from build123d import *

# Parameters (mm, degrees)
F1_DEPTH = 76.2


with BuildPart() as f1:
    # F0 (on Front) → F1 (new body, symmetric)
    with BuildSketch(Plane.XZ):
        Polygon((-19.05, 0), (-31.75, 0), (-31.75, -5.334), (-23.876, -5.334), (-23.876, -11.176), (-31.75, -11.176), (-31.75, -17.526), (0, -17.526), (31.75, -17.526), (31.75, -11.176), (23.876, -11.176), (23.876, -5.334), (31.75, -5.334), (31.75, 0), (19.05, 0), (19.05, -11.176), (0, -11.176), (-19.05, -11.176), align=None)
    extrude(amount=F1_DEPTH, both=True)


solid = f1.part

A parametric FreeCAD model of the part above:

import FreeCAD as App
import Part
import Sketcher
Q = App.Units.Quantity


def add_polygon(sketch, points):
    """Adds a closed chain of lines whose ends are joined by coincident constraints."""
    first, n = sketch.GeometryCount, len(points)
    for a, b in zip(points, points[1:] + points[:1]):
        sketch.addGeometry(Part.LineSegment(App.Vector(*a, 0), App.Vector(*b, 0)), False)
    for i in range(n):
        sketch.addConstraint(Sketcher.Constraint("Coincident", first + i, 2, first + (i + 1) % n, 1))

doc = App.newDocument("Part")
body = doc.addObject("PartDesign::Body", "Body")

# Sketch on XZ plane
sketch1 = body.newObject("Sketcher::SketchObject", "Sketch")
sketch1.AttachmentSupport = (doc.getObject("XZ_Plane"), [""])
sketch1.MapMode = "FlatFace"
add_polygon(sketch1, [(-19, 0), (-32, 0), (-32, -5), (-24, -5), (-24, -11), (-32, -11), (-32, -18), (32, -18), (32, -11), (24, -11), (24, -5), (32, -5), (32, 0), (19, 0), (19, -11), (-19, -11)])  # lines 0-15
sketch1.addConstraint(Sketcher.Constraint("Horizontal", 0))
sketch1.addConstraint(Sketcher.Constraint("Vertical", 1))
sketch1.addConstraint(Sketcher.Constraint("Horizontal", 2))
sketch1.addConstraint(Sketcher.Constraint("Vertical", 3))
sketch1.addConstraint(Sketcher.Constraint("Horizontal", 4))
sketch1.addConstraint(Sketcher.Constraint("Vertical", 5))
sketch1.addConstraint(Sketcher.Constraint("Horizontal", 6))
sketch1.addConstraint(Sketcher.Constraint("Vertical", 7))
sketch1.addConstraint(Sketcher.Constraint("Horizontal", 8))
sketch1.addConstraint(Sketcher.Constraint("Vertical", 9))
sketch1.addConstraint(Sketcher.Constraint("Horizontal", 10))
sketch1.addConstraint(Sketcher.Constraint("Vertical", 11))
sketch1.addConstraint(Sketcher.Constraint("Horizontal", 12))
sketch1.addConstraint(Sketcher.Constraint("Vertical", 13))
sketch1.addConstraint(Sketcher.Constraint("Horizontal", 14))
sketch1.addConstraint(Sketcher.Constraint("Vertical", 15))
sketch1.addConstraint(Sketcher.Constraint("Symmetric", 0, 2, 11, 2, -1, 1))
sketch1.addConstraint(Sketcher.Constraint("Symmetric", 4, 2, 7, 2, -2))
sketch1.addConstraint(Sketcher.Constraint("Symmetric", 2, 2, 9, 2, -2))
sketch1.addConstraint(Sketcher.Constraint("Symmetric", 12, 2, 15, 2, -2))
sketch1.addConstraint(Sketcher.Constraint("Horizontal", 8, 2, 13, 2))
sketch1.addConstraint(Sketcher.Constraint("Vertical", 1, 2, 4, 2))
sketch1.addConstraint(Sketcher.Constraint("DistanceX", 0, 2, 0, 1, Q("0.5 in")))
sketch1.addConstraint(Sketcher.Constraint("DistanceX", 6, 1, 6, 2, Q("2.5 in")))
sketch1.addConstraint(Sketcher.Constraint("DistanceX", 2, 1, 2, 2, Q("0.31 in")))
sketch1.addConstraint(Sketcher.Constraint("DistanceY", 1, 2, 1, 1, Q("0.21 in")))
sketch1.addConstraint(Sketcher.Constraint("DistanceY", 3, 2, 3, 1, Q("0.23 in")))
sketch1.addConstraint(Sketcher.Constraint("DistanceY", 5, 2, 5, 1, Q("0.25 in")))
pad1 = body.newObject("PartDesign::Pad", "Pad")
pad1.Profile = sketch1
pad1.Length = Q("6 in")
pad1.Midplane = True

doc.recompute()
